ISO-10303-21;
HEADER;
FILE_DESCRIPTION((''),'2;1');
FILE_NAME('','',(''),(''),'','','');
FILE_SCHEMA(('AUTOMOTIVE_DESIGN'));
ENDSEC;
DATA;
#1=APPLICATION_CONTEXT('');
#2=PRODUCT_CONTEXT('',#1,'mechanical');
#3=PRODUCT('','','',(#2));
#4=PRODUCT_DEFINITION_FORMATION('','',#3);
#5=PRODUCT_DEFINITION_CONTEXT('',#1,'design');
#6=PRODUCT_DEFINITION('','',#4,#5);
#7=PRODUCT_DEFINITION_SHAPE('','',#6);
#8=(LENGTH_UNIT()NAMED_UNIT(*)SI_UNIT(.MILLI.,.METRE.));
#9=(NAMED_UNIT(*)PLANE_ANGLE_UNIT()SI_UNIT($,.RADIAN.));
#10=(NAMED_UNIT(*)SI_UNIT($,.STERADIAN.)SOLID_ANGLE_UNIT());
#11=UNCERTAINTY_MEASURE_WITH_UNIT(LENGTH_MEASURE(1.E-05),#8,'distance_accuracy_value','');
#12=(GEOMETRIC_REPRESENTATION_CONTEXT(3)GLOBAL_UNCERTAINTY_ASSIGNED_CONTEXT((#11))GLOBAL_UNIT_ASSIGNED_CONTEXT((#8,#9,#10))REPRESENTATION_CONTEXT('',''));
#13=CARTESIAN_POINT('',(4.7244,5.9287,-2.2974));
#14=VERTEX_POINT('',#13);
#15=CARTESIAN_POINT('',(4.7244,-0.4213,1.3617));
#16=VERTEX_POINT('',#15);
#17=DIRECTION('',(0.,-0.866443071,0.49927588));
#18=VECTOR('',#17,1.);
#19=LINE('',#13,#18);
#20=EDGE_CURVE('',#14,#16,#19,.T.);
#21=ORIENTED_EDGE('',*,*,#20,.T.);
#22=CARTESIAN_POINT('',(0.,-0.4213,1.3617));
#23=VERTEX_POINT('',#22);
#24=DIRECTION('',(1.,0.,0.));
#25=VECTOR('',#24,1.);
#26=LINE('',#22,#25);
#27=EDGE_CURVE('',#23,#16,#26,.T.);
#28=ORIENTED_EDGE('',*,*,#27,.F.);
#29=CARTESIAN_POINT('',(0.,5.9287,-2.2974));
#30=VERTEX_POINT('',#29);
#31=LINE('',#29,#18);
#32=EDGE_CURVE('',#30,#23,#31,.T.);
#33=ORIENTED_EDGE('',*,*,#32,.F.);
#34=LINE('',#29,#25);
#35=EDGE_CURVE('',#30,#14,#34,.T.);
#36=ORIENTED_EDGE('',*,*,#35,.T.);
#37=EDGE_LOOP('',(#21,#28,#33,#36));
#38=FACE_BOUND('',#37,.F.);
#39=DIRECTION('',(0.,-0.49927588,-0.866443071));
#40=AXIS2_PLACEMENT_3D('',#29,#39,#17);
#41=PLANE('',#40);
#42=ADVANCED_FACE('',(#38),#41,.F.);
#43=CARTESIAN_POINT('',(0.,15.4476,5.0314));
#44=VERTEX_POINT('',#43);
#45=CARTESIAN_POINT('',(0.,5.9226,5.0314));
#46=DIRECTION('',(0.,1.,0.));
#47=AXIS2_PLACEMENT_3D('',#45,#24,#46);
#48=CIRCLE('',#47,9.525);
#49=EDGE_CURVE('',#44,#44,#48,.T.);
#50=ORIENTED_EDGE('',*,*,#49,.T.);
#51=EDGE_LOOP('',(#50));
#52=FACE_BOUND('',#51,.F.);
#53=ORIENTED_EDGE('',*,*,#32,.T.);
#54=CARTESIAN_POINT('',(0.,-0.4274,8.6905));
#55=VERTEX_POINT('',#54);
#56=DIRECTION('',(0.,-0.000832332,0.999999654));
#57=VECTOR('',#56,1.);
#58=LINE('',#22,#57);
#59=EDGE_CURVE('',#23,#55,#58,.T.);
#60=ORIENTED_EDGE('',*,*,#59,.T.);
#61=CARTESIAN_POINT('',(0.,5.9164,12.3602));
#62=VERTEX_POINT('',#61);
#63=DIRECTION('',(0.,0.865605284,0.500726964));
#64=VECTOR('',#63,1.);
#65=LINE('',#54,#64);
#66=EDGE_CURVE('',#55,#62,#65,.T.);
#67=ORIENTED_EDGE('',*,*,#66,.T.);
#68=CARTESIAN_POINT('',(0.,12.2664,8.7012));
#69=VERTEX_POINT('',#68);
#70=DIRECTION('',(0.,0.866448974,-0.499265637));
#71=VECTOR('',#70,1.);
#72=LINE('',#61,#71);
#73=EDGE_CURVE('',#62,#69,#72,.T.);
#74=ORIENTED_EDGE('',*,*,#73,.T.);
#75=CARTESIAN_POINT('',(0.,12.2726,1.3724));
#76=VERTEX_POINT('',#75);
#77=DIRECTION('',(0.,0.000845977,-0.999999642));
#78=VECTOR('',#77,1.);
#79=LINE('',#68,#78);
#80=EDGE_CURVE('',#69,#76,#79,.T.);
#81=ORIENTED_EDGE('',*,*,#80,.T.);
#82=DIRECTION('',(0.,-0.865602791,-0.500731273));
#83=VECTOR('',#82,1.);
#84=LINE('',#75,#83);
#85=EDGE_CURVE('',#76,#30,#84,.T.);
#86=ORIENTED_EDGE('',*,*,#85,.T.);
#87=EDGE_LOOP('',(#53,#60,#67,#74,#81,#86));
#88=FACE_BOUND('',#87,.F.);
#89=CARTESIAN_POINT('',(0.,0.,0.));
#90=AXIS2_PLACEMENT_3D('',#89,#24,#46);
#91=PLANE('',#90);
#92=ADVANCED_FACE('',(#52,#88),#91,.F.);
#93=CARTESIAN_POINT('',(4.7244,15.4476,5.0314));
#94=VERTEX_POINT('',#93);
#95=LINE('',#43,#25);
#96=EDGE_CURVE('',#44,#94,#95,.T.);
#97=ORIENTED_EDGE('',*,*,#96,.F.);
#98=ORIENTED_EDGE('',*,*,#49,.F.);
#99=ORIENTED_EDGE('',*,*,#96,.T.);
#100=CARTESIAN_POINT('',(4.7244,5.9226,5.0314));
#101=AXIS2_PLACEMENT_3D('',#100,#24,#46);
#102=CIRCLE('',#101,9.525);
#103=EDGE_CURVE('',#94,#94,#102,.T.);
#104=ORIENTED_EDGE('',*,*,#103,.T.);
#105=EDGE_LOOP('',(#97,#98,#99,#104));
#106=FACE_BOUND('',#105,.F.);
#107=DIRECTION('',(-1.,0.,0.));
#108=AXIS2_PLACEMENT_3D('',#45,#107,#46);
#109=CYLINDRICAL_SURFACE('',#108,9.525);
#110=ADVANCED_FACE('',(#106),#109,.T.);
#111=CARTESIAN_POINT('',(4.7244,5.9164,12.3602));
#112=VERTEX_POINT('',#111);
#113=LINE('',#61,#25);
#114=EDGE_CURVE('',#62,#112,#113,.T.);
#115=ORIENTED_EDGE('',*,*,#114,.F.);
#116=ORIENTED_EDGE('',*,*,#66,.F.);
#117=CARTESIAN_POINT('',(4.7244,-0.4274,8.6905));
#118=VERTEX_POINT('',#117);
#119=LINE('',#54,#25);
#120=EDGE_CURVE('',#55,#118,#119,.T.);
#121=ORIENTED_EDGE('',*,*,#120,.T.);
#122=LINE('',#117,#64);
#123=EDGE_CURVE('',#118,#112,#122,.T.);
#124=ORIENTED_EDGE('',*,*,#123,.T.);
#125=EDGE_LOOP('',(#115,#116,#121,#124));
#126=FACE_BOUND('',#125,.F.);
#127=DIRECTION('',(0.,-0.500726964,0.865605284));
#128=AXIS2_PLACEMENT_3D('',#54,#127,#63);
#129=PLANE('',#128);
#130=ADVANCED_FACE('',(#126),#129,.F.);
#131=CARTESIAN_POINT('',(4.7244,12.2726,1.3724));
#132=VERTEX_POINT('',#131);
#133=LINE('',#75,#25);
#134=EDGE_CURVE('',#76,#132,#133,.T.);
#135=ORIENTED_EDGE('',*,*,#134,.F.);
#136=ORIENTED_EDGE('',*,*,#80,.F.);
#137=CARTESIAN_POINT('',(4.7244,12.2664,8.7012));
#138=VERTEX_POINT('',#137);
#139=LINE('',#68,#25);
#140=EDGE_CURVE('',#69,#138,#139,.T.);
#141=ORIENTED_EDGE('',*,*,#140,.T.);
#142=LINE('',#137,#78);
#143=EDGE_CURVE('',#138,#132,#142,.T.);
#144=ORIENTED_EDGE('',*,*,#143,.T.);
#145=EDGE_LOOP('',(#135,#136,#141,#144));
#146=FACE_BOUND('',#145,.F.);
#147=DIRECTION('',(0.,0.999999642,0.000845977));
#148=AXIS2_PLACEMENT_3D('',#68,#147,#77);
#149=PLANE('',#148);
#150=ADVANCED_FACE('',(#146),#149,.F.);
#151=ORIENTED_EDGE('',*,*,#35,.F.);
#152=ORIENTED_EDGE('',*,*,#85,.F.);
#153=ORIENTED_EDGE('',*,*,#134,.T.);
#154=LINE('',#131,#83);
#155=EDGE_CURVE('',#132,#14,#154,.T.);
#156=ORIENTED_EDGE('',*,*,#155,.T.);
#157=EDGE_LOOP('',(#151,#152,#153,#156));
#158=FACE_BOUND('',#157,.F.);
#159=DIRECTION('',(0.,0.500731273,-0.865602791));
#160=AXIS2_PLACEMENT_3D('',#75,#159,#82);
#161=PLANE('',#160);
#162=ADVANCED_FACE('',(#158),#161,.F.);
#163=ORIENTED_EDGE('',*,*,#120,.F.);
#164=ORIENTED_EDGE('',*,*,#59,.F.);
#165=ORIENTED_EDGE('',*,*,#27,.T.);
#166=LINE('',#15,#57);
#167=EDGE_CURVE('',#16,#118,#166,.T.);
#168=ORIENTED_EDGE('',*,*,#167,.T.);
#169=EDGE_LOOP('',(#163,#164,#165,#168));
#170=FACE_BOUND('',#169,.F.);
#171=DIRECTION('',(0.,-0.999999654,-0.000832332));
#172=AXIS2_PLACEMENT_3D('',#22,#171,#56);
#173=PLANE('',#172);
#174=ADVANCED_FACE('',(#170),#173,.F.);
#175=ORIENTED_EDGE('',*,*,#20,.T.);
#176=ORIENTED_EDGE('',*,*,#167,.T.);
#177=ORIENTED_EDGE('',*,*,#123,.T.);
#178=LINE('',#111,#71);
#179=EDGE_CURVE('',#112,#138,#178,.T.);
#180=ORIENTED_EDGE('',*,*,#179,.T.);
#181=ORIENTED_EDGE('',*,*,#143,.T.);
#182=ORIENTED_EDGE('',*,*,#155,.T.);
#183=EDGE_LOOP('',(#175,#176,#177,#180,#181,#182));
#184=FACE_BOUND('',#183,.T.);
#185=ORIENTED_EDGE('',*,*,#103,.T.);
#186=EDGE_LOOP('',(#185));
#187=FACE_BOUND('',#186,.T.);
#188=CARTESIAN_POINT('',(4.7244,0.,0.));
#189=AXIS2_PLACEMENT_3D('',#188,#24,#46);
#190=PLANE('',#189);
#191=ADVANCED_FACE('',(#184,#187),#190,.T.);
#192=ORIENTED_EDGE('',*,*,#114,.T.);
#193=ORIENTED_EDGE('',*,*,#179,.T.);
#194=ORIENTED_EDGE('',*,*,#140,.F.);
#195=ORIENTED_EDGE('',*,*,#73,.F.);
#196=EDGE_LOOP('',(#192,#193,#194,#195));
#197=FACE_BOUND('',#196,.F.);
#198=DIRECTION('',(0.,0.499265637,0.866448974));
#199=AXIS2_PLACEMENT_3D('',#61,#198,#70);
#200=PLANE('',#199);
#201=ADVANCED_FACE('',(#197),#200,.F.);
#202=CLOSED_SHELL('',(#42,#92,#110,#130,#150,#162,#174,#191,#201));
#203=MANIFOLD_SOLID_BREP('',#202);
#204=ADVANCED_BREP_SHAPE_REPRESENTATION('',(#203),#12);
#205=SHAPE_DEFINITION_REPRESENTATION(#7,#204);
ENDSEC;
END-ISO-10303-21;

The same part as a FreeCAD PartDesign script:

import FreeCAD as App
import Part
import Sketcher
from FreeCAD import Vector
Q = App.Units.Quantity

doc = App.newDocument("Part")
body = doc.addObject("PartDesign::Body", "Body")

sketch1 = body.newObject("Sketcher::SketchObject", "Sketch")
sketch1.AttachmentSupport = (doc.getObject("YZ_Plane"), [""])
sketch1.MapMode = "FlatFace"
sketch1.addGeometry([
    Part.Circle(Vector(5.9226, 5.0314, 0), Vector(0, 0, 1), 9.525),
    Part.LineSegment(Vector(12.2664, 8.7012, 0), Vector(12.2726, 1.3724, 0)),
    Part.LineSegment(Vector(12.2726, 1.3724, 0), Vector(5.9287, -2.2974, 0)),
    Part.LineSegment(Vector(5.9287, -2.2974, 0), Vector(-0.4213, 1.3617, 0)),
    Part.LineSegment(Vector(-0.4213, 1.3617, 0), Vector(-0.4274, 8.6905, 0)),
    Part.LineSegment(Vector(-0.4274, 8.6905, 0), Vector(5.9164, 12.3602, 0)),
    Part.LineSegment(Vector(5.9164, 12.3602, 0), Vector(12.2664, 8.7012, 0)),
], False)
sketch1.addConstraint([
    Sketcher.Constraint("Coincident", 1, 2, 2, 1),
    Sketcher.Constraint("Coincident", 2, 2, 3, 1),
    Sketcher.Constraint("Coincident", 3, 2, 4, 1),
    Sketcher.Constraint("Coincident", 4, 2, 5, 1),
    Sketcher.Constraint("Coincident", 5, 2, 6, 1),
    Sketcher.Constraint("Coincident", 6, 2, 1, 1),
    Sketcher.Constraint("Parallel", 1, 4),
    Sketcher.Constraint("Parallel", 2, 5),
    Sketcher.Constraint("Parallel", 3, 6),
    Sketcher.Constraint("Equal", 1, 2),
    Sketcher.Constraint("Equal", 2, 3),
    Sketcher.Constraint("Equal", 3, 4),
    Sketcher.Constraint("Diameter", 0, Q("0.75 in")),
    Sketcher.Constraint("DistanceX", 4, 2, 1, 2, Q("0.5 in")),
    Sketcher.Constraint("DistanceX", 0, 3, 1, 2, Q("0.25 in")),
    Sketcher.Constraint("DistanceX", 3, 2, 2, 2, Q("0.25 in")),
    Sketcher.Constraint("DistanceY", 3, 2, 5, 2, Q("0.433 in")),
    Sketcher.Constraint("DistanceY", -1, 1, 3, 2, Q("0.0536 in")),
    Sketcher.Constraint("DistanceY", 2, 2, 4, 2, Q("0.4326 in")),
    Sketcher.Constraint("DistanceX", -1, 1, 0, 3, 5.9226),
    Sketcher.Constraint("DistanceY", -1, 1, 0, 3, 5.0314),
])
pad1 = body.newObject("PartDesign::Pad", "Pad")
pad1.Profile = sketch1
pad1.Length = Q("0.186 in")

doc.recompute()
